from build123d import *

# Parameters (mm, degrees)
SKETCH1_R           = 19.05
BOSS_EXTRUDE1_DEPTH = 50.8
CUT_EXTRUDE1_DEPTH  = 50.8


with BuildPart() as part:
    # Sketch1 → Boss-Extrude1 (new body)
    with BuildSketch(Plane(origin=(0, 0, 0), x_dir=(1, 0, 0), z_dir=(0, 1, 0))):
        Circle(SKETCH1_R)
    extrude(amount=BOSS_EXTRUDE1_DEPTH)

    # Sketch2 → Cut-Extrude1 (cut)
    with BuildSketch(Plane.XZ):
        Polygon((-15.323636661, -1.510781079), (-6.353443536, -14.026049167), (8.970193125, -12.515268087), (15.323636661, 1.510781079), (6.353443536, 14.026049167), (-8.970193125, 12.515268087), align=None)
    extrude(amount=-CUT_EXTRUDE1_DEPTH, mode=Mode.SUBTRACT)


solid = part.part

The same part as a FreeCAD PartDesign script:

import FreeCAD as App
import Part
import Sketcher
Q = App.Units.Quantity


def add_polygon(sketch, points):
    """Adds a closed chain of lines whose ends are joined by coincident constraints."""
    first, n = sketch.GeometryCount, len(points)
    for a, b in zip(points, points[1:] + points[:1]):
        sketch.addGeometry(Part.LineSegment(App.Vector(*a, 0), App.Vector(*b, 0)), False)
    for i in range(n):
        sketch.addConstraint(Sketcher.Constraint("Coincident", first + i, 2, first + (i + 1) % n, 1))

doc = App.newDocument("Part")
body = doc.addObject("PartDesign::Body", "Body")

# Sketch on XZ plane
sketch1 = body.newObject("Sketcher::SketchObject", "Sketch")
sketch1.AttachmentSupport = (doc.getObject("XZ_Plane"), [""])
sketch1.MapMode = "FlatFace"
sketch1.addGeometry(Part.Circle(App.Vector(0, 0, 0), App.Vector(0, 0, 1), 19), False)
sketch1.addConstraint(Sketcher.Constraint("Coincident", 0, 3, -1, 1))
sketch1.addConstraint(Sketcher.Constraint("Diameter", 0, Q("1.5 in")))
pad1 = body.newObject("PartDesign::Pad", "Pad")
pad1.Profile = sketch1
pad1.Length = Q("2 in")
pad1.Reversed = True

# Sketch on XZ plane
sketch2 = body.newObject("Sketcher::SketchObject", "Sketch001")
sketch2.AttachmentSupport = (doc.getObject("XZ_Plane"), [""])
sketch2.MapMode = "FlatFace"
add_polygon(sketch2, [(-15, -2), (-6, -14), (9, -13), (15, 2), (6, 14), (-9, 13)])  # lines 0-5
sketch2.addConstraint(Sketcher.Constraint("Symmetric", 0, 2, 3, 2, -1, 1))
sketch2.addConstraint(Sketcher.Constraint("Symmetric", 1, 2, 4, 2, -1, 1))
sketch2.addConstraint(Sketcher.Constraint("Symmetric", 2, 2, 5, 2, -1, 1))
sketch2.addConstraint(Sketcher.Constraint("Equal", 0, 1))
sketch2.addConstraint(Sketcher.Constraint("Equal", 1, 2))
sketch2.addConstraint(Sketcher.Constraint("DistanceY", 0, 2, 3, 2, 28.052098))
sketch2.addConstraint(Sketcher.Constraint("Distance", 0, 15.397932))
sketch2.addConstraint(Sketcher.Constraint("DistanceY", 1, 2, -1, 1, 12.515268))
sketch2.addConstraint(Sketcher.Constraint("DistanceY", -1, 1, 2, 2, 1.510781))
pocket1 = body.newObject("PartDesign::Pocket", "Pocket")
pocket1.Profile = sketch2
pocket1.Length = Q("2 in")

doc.recompute()
